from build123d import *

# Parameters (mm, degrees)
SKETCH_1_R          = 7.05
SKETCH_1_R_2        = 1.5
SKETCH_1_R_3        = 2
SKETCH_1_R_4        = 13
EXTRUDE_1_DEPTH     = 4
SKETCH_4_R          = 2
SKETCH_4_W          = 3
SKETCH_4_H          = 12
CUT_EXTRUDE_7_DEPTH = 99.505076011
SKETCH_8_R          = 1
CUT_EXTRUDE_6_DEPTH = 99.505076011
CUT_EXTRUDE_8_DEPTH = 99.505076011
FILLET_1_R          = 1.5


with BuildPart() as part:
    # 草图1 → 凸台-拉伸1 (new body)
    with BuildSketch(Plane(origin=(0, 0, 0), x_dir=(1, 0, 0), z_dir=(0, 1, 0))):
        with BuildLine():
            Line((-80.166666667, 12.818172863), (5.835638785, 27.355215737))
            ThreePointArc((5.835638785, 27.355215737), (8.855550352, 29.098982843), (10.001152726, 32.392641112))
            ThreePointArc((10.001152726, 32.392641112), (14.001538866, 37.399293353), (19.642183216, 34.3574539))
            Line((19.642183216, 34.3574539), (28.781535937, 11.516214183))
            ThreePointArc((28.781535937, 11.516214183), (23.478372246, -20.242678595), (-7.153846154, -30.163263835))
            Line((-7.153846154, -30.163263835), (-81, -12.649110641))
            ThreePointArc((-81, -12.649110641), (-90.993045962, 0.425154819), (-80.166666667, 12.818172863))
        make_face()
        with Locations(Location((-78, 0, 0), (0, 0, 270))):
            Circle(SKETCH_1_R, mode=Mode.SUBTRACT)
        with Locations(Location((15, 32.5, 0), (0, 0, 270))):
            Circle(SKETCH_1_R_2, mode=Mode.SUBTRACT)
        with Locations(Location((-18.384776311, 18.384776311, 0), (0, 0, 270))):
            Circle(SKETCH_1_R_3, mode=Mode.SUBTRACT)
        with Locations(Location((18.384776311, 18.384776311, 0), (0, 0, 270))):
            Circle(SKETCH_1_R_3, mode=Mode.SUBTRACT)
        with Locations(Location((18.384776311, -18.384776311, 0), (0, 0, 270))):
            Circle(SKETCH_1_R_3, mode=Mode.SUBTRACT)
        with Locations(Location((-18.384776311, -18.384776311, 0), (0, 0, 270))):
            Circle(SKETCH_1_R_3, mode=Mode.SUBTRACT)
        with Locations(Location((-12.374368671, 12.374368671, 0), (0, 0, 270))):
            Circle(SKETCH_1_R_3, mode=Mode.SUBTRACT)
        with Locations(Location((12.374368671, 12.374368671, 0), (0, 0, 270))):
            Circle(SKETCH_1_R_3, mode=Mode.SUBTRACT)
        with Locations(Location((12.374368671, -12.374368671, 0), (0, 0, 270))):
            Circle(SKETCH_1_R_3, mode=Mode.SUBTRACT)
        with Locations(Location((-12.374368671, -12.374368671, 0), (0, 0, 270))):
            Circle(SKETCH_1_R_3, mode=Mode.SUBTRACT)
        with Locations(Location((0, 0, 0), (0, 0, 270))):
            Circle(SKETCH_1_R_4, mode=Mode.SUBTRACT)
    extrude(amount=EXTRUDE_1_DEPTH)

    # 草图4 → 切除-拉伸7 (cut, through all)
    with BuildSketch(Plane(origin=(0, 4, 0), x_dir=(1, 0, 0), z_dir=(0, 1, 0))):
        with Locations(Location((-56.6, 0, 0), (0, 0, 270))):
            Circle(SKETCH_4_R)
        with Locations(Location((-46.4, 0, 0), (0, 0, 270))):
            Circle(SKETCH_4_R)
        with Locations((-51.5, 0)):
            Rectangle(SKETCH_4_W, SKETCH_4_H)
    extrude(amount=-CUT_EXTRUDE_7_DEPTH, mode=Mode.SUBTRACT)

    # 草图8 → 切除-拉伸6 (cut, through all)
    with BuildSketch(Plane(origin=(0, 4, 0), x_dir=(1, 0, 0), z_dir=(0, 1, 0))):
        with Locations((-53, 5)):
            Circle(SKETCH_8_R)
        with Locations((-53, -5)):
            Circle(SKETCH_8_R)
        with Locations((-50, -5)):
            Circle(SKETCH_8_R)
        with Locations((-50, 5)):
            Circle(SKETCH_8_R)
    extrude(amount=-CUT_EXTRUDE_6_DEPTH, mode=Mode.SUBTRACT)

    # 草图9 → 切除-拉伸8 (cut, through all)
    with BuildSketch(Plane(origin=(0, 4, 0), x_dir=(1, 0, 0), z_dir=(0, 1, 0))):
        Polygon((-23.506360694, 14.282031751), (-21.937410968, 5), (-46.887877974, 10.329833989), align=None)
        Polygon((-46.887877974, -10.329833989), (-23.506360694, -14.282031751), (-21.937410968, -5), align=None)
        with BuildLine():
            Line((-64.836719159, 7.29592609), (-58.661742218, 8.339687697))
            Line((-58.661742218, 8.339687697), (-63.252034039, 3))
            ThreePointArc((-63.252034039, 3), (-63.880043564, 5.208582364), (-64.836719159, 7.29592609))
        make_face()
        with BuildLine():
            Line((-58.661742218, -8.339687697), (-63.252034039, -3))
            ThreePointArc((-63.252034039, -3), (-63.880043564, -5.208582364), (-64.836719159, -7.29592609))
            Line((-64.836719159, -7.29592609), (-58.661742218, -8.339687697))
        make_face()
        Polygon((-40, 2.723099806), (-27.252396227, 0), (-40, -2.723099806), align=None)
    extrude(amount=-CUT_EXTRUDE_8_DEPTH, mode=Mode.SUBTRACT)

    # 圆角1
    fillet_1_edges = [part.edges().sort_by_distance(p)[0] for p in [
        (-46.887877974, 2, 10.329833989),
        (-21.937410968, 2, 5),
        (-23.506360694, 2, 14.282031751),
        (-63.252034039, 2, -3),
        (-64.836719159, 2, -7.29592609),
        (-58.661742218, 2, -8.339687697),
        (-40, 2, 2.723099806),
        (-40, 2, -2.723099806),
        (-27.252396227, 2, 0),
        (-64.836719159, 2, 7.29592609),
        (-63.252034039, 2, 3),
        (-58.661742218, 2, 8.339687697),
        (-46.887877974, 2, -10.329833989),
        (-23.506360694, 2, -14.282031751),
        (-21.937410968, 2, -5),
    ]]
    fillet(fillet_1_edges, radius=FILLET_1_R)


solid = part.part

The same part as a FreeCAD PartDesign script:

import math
import FreeCAD as App
import Part
import Sketcher
from FreeCAD import Vector
Q = App.Units.Quantity


def edges_at(feature, points):
    """Names of the edges that pass closest to the given points."""
    edges = feature.Shape.Edges
    near = lambda p: min(range(len(edges)), key=lambda i: edges[i].distToShape(Part.Vertex(*p))[0])
    return sorted({f"Edge{near(p) + 1}" for p in points})


def add_polygon(sketch, points):
    """Adds a closed chain of lines whose ends are joined by coincident constraints."""
    first, n = sketch.GeometryCount, len(points)
    for a, b in zip(points, points[1:] + points[:1]):
        sketch.addGeometry(Part.LineSegment(App.Vector(*a, 0), App.Vector(*b, 0)), False)
    for i in range(n):
        sketch.addConstraint(Sketcher.Constraint("Coincident", first + i, 2, first + (i + 1) % n, 1))

doc = App.newDocument("Part")
body = doc.addObject("PartDesign::Body", "Body")

# Sketch on XZ plane
sketch1 = body.newObject("Sketcher::SketchObject", "Sketch")
sketch1.AttachmentSupport = (doc.getObject("XZ_Plane"), [""])
sketch1.MapMode = "FlatFace"
sketch1.addGeometry(Part.LineSegment(Vector(5.8, -27.4, 0), Vector(-80.2, -12.8, 0)), False)
sketch1.addGeometry(Part.ArcOfCircle(Part.Circle(Vector(-78, 0, 0), Vector(0, 0, 1), 13), math.radians(103), math.radians(260)), False)
sketch1.addGeometry(Part.LineSegment(Vector(-81, 12.6, 0), Vector(-7.2, 30.2, 0)), False)
sketch1.addGeometry(Part.ArcOfCircle(Part.Circle(Vector(0, 0, 0), Vector(0, 0, 1), 31), math.radians(-22), math.radians(103)), False)
sketch1.addGeometry(Part.LineSegment(Vector(28.8, -11.5, 0), Vector(19.6, -34.4, 0)), False)
sketch1.addGeometry(Part.ArcOfCircle(Part.Circle(Vector(15, -32.5, 0), Vector(0, 0, 1), 5), math.radians(179), math.radians(338)), False)
sketch1.addGeometry(Part.ArcOfCircle(Part.Circle(Vector(5, -32.3, 0), Vector(0, 0, 1), 5), math.radians(-1), math.radians(80)), False)
sketch1.addGeometry(Part.Circle(Vector(18.4, 18.4, 0), Vector(0, 0, 1), 2), False)
sketch1.addGeometry(Part.Circle(Vector(12.4, 12.4, 0), Vector(0, 0, 1), 2), False)
sketch1.addGeometry(Part.Circle(Vector(-18.4, 18.4, 0), Vector(0, 0, 1), 2), False)
sketch1.addGeometry(Part.Circle(Vector(-12.4, 12.4, 0), Vector(0, 0, 1), 2), False)
sketch1.addGeometry(Part.Circle(Vector(0, 0, 0), Vector(0, 0, 1), 13), False)
sketch1.addGeometry(Part.Circle(Vector(-78, 0, 0), Vector(0, 0, 1), 7), False)
sketch1.addGeometry(Part.Circle(Vector(12.4, -12.4, 0), Vector(0, 0, 1), 2), False)
sketch1.addGeometry(Part.Circle(Vector(18.4, -18.4, 0), Vector(0, 0, 1), 2), False)
sketch1.addGeometry(Part.Circle(Vector(-12.4, -12.4, 0), Vector(0, 0, 1), 2), False)
sketch1.addGeometry(Part.Circle(Vector(-18.4, -18.4, 0), Vector(0, 0, 1), 2), False)
sketch1.addGeometry(Part.Circle(Vector(15, -32.5, 0), Vector(0, 0, 1), 1.5), False)
sketch1.addConstraint(Sketcher.Constraint("Tangent", 0, 2, 1, 2))
sketch1.addConstraint(Sketcher.Constraint("Tangent", 1, 1, 2, 1))
sketch1.addConstraint(Sketcher.Constraint("Tangent", 2, 2, 3, 2))
sketch1.addConstraint(Sketcher.Constraint("Tangent", 3, 1, 4, 1))
sketch1.addConstraint(Sketcher.Constraint("Tangent", 4, 2, 5, 2))
sketch1.addConstraint(Sketcher.Constraint("Tangent", 5, 1, 6, 1))
sketch1.addConstraint(Sketcher.Constraint("Tangent", 6, 2, 0, 1))
sketch1.addConstraint(Sketcher.Constraint("Coincident", 3, 3, -1, 1))
sketch1.addConstraint(Sketcher.Constraint("Coincident", 11, 3, -1, 1))
sketch1.addConstraint(Sketcher.Constraint("Coincident", 12, 3, 1, 3))
sketch1.addConstraint(Sketcher.Constraint("Coincident", 17, 3, 5, 3))
sketch1.addConstraint(Sketcher.Constraint("Equal", 5, 6))
sketch1.addConstraint(Sketcher.Constraint("Equal", 7, 8))
sketch1.addConstraint(Sketcher.Constraint("Equal", 8, 9))
sketch1.addConstraint(Sketcher.Constraint("Equal", 9, 10))
sketch1.addConstraint(Sketcher.Constraint("Equal", 1, 11))
sketch1.addConstraint(Sketcher.Constraint("Equal", 10, 13))
sketch1.addConstraint(Sketcher.Constraint("Equal", 13, 14))
sketch1.addConstraint(Sketcher.Constraint("Equal", 14, 15))
sketch1.addConstraint(Sketcher.Constraint("Equal", 15, 16))
sketch1.addConstraint(Sketcher.Constraint("Symmetric", 10, 3, 13, 3, -1, 1))
sketch1.addConstraint(Sketcher.Constraint("Symmetric", 9, 3, 14, 3, -1, 1))
sketch1.addConstraint(Sketcher.Constraint("Symmetric", 8, 3, 15, 3, -1, 1))
sketch1.addConstraint(Sketcher.Constraint("Symmetric", 7, 3, 16, 3, -1, 1))
sketch1.addConstraint(Sketcher.Constraint("Symmetric", 7, 3, 9, 3, -2))
sketch1.addConstraint(Sketcher.Constraint("Symmetric", 8, 3, 10, 3, -2))
sketch1.addConstraint(Sketcher.Constraint("PointOnObject", 1, 3, -1))
sketch1.addConstraint(Sketcher.Constraint("Diameter", 7, Q("4 mm")))
sketch1.addConstraint(Sketcher.Constraint("Diameter", 11, Q("26 mm")))
sketch1.addConstraint(Sketcher.Constraint("Diameter", 17, Q("3 mm")))
sketch1.addConstraint(Sketcher.Constraint("Radius", 3, Q("31 mm")))
sketch1.addConstraint(Sketcher.Constraint("Radius", 5, Q("5 mm")))
sketch1.addConstraint(Sketcher.Constraint("Diameter", 12, Q("14.1 mm")))
sketch1.addConstraint(Sketcher.Constraint("DistanceX", 1, 3, -1, 1, Q("78 mm")))
sketch1.addConstraint(Sketcher.Constraint("DistanceX", -1, 1, 5, 3, Q("15 mm")))
sketch1.addConstraint(Sketcher.Constraint("DistanceY", 5, 3, -1, 1, Q("32.5 mm")))
sketch1.addConstraint(Sketcher.Constraint("DistanceX", -1, 1, 8, 3, Q("12.374369 mm")))
sketch1.addConstraint(Sketcher.Constraint("DistanceY", -1, 1, 8, 3, Q("12.374369 mm")))
sketch1.addConstraint(Sketcher.Constraint("DistanceY", 5, 1, -1, 1, Q("32.392641 mm")))
sketch1.addConstraint(Sketcher.Constraint("DistanceX", 6, 3, 7, 3, Q("13.382471 mm")))
sketch1.addConstraint(Sketcher.Constraint("DistanceY", 6, 3, 7, 3, Q("50.670059 mm")))
pad1 = body.newObject("PartDesign::Pad", "Pad")
pad1.Profile = sketch1
pad1.Length = 4
pad1.Reversed = True

# Sketch on XZ plane
sketch2 = body.newObject("Sketcher::SketchObject", "Sketch001")
sketch2.AttachmentSupport = (doc.getObject("XZ_Plane"), [""])
sketch2.MapMode = "FlatFace"
sketch2.AttachmentOffset = App.Placement(Vector(0, 0, -4), App.Rotation())
sketch2.addGeometry(Part.Circle(Vector(-56.6, 0, 0), Vector(0, 0, 1), 2), False)  # 0
sketch2.addGeometry(Part.Circle(Vector(-46.4, 0, 0), Vector(0, 0, 1), 2), False)  # 1
add_polygon(sketch2, [(-53, -6), (-53, 6), (-50, 6), (-50, -6)])  # lines 2-5
sketch2.addConstraint(Sketcher.Constraint("Vertical", 2))
sketch2.addConstraint(Sketcher.Constraint("Horizontal", 3))
sketch2.addConstraint(Sketcher.Constraint("Vertical", 4))
sketch2.addConstraint(Sketcher.Constraint("Horizontal", 5))
sketch2.addConstraint(Sketcher.Constraint("Equal", 0, 1))
sketch2.addConstraint(Sketcher.Constraint("PointOnObject", 0, 3, -1))
sketch2.addConstraint(Sketcher.Constraint("PointOnObject", 1, 3, -1))
sketch2.addConstraint(Sketcher.Constraint("Diameter", 0, Q("4 mm")))
sketch2.addConstraint(Sketcher.Constraint("DistanceX", 3, 1, 3, 2, Q("3 mm")))
sketch2.addConstraint(Sketcher.Constraint("DistanceY", 2, 1, 2, 2, Q("12 mm")))
sketch2.addConstraint(Sketcher.Constraint("DistanceX", 2, 2, -1, 1, Q("53 mm")))
sketch2.addConstraint(Sketcher.Constraint("DistanceY", -1, 1, 2, 2, Q("6 mm")))
sketch2.addConstraint(Sketcher.Constraint("DistanceX", 0, 3, -1, 1, Q("56.6 mm")))
sketch2.addConstraint(Sketcher.Constraint("DistanceX", 1, 3, -1, 1, Q("46.4 mm")))
pocket1 = body.newObject("PartDesign::Pocket", "Pocket")
pocket1.Profile = sketch2
pocket1.Type = "ThroughAll"
pocket1.Reversed = True

# Sketch on XZ plane
sketch3 = body.newObject("Sketcher::SketchObject", "Sketch002")
sketch3.AttachmentSupport = (doc.getObject("XZ_Plane"), [""])
sketch3.MapMode = "FlatFace"
sketch3.AttachmentOffset = App.Placement(Vector(0, 0, -4), App.Rotation())
sketch3.addGeometry(Part.Circle(Vector(-53, -5, 0), Vector(0, 0, 1), 1), False)
sketch3.addGeometry(Part.Circle(Vector(-53, 5, 0), Vector(0, 0, 1), 1), False)
sketch3.addGeometry(Part.Circle(Vector(-50, 5, 0), Vector(0, 0, 1), 1), False)
sketch3.addGeometry(Part.Circle(Vector(-50, -5, 0), Vector(0, 0, 1), 1), False)
sketch3.addConstraint(Sketcher.Constraint("Equal", 0, 1))
sketch3.addConstraint(Sketcher.Constraint("Equal", 1, 2))
sketch3.addConstraint(Sketcher.Constraint("Equal", 2, 3))
sketch3.addConstraint(Sketcher.Constraint("Symmetric", 0, 3, 1, 3, -1))
sketch3.addConstraint(Sketcher.Constraint("Symmetric", 2, 3, 3, 3, -1))
sketch3.addConstraint(Sketcher.Constraint("Horizontal", 1, 3, 2, 3))
sketch3.addConstraint(Sketcher.Constraint("Diameter", 0, Q("2 mm")))
sketch3.addConstraint(Sketcher.Constraint("DistanceX", 0, 3, -1, 1, Q("53 mm")))
sketch3.addConstraint(Sketcher.Constraint("DistanceY", 0, 3, -1, 1, Q("5 mm")))
sketch3.addConstraint(Sketcher.Constraint("DistanceX", 2, 3, -1, 1, Q("50 mm")))
pocket2 = body.newObject("PartDesign::Pocket", "Pocket001")
pocket2.Profile = sketch3
pocket2.Type = "ThroughAll"
pocket2.Reversed = True

# Sketch on XZ plane
sketch4 = body.newObject("Sketcher::SketchObject", "Sketch003")
sketch4.AttachmentSupport = (doc.getObject("XZ_Plane"), [""])
sketch4.MapMode = "FlatFace"
sketch4.AttachmentOffset = App.Placement(Vector(0, 0, -4), App.Rotation())
add_polygon(sketch4, [(-21.937411, -5), (-23.506361, -14.282032), (-46.887878, -10.329834)])  # lines 0-2
add_polygon(sketch4, [(-46.887878, 10.329834), (-23.506361, 14.282032), (-21.937411, 5)])  # lines 3-5
sketch4.addGeometry(Part.LineSegment(Vector(-58.661742, -8.339688, 0), Vector(-64.836719, -7.295926, 0)), False)  # 6
sketch4.addGeometry(Part.ArcOfCircle(Part.Circle(Vector(-78, 0, 0), Vector(0, 0, 1), 15.05), math.radians(-28.998003), math.radians(-11.498106)), False)  # 7
sketch4.addGeometry(Part.LineSegment(Vector(-63.252034, -3, 0), Vector(-58.661742, -8.339688, 0)), False)  # 8
sketch4.addGeometry(Part.LineSegment(Vector(-58.661742, 8.339688, 0), Vector(-63.252034, 3, 0)), False)  # 9
sketch4.addGeometry(Part.ArcOfCircle(Part.Circle(Vector(-78, 0, 0), Vector(0, 0, 1), 15.05), math.radians(11.498106), math.radians(28.998003)), False)  # 10
sketch4.addGeometry(Part.LineSegment(Vector(-64.836719, 7.295926, 0), Vector(-58.661742, 8.339688, 0)), False)  # 11
add_polygon(sketch4, [(-27.252396, 0), (-40, -2.7231), (-40, 2.7231)])  # lines 12-14
sketch4.addConstraint(Sketcher.Constraint("Coincident", 6, 2, 7, 1))
sketch4.addConstraint(Sketcher.Constraint("Coincident", 7, 2, 8, 1))
sketch4.addConstraint(Sketcher.Constraint("Coincident", 8, 2, 6, 1))
sketch4.addConstraint(Sketcher.Constraint("Coincident", 9, 2, 10, 1))
sketch4.addConstraint(Sketcher.Constraint("Coincident", 10, 2, 11, 1))
sketch4.addConstraint(Sketcher.Constraint("Coincident", 11, 2, 9, 1))
sketch4.addConstraint(Sketcher.Constraint("Vertical", 13))
sketch4.addConstraint(Sketcher.Constraint("Coincident", 10, 3, 7, 3))
sketch4.addConstraint(Sketcher.Constraint("PointOnObject", 7, 3, -1))
sketch4.addConstraint(Sketcher.Constraint("PointOnObject", 14, 2, -1))
sketch4.addConstraint(Sketcher.Constraint("Radius", 7, Q("15.05 mm")))
sketch4.addConstraint(Sketcher.Constraint("Radius", 10, Q("15.05 mm")))
sketch4.addConstraint(Sketcher.Constraint("DistanceX", 7, 3, -1, 1, Q("78 mm")))
sketch4.addConstraint(Sketcher.Constraint("DistanceY", 2, 2, -1, 1, Q("5 mm")))
sketch4.addConstraint(Sketcher.Constraint("DistanceY", -1, 1, 4, 2, Q("5 mm")))
sketch4.addConstraint(Sketcher.Constraint("DistanceY", 7, 2, -1, 1, Q("3 mm")))
sketch4.addConstraint(Sketcher.Constraint("DistanceY", -1, 1, 9, 2, Q("3 mm")))
sketch4.addConstraint(Sketcher.Constraint("DistanceX", 12, 2, -1, 1, Q("40 mm")))
sketch4.addConstraint(Sketcher.Constraint("DistanceY", 13, 1, 13, 2, Q("5.4462 mm")))
sketch4.addConstraint(Sketcher.Constraint("Distance", 0, Q("9.413698 mm")))
sketch4.addConstraint(Sketcher.Constraint("Distance", 4, Q("9.413698 mm")))
sketch4.addConstraint(Sketcher.Constraint("DistanceY", 12, 2, -1, 1, Q("2.7231 mm")))
sketch4.addConstraint(Sketcher.Constraint("Distance", 6, Q("6.26257 mm")))
sketch4.addConstraint(Sketcher.Constraint("Distance", 11, Q("6.26257 mm")))
sketch4.addConstraint(Sketcher.Constraint("Distance", 12, Q("13.035209 mm")))
sketch4.addConstraint(Sketcher.Constraint("DistanceX", 0, 2, -1, 1, Q("23.506361 mm")))
sketch4.addConstraint(Sketcher.Constraint("DistanceY", 0, 2, -1, 1, Q("14.282032 mm")))
sketch4.addConstraint(Sketcher.Constraint("DistanceX", 3, 2, -1, 1, Q("23.506361 mm")))
sketch4.addConstraint(Sketcher.Constraint("DistanceY", -1, 1, 3, 2, Q("14.282032 mm")))
sketch4.addConstraint(Sketcher.Constraint("DistanceX", 6, 2, -1, 1, Q("64.836719 mm")))
sketch4.addConstraint(Sketcher.Constraint("DistanceX", 10, 2, -1, 1, Q("64.836719 mm")))
sketch4.addConstraint(Sketcher.Constraint("DistanceX", 6, 2, 1, 2, Q("17.948841 mm")))
sketch4.addConstraint(Sketcher.Constraint("DistanceX", 6, 2, 5, 2, Q("17.948841 mm")))
sketch4.addConstraint(Sketcher.Constraint("DistanceY", 6, 2, 5, 2, Q("17.62576 mm")))
sketch4.addConstraint(Sketcher.Constraint("DistanceY", 8, 2, 6, 2, Q("1.043762 mm")))
sketch4.addConstraint(Sketcher.Constraint("DistanceY", 10, 2, 11, 2, Q("1.043762 mm")))
sketch4.addConstraint(Sketcher.Constraint("Distance", 1, Q("23.713187 mm")))
pocket3 = body.newObject("PartDesign::Pocket", "Pocket002")
pocket3.Profile = sketch4
pocket3.Type = "ThroughAll"
pocket3.Reversed = True
doc.recompute()

fillet = body.newObject("PartDesign::Fillet", "Fillet")
fillet.Base = (pocket3, edges_at(pocket3, [
    (-46.888, 2, 10.33),
    (-21.937, 2, 5),
    (-23.506, 2, 14.282),
    (-63.252, 2, -3),
    (-64.837, 2, -7.296),
    (-58.662, 2, -8.34),
    (-40, 2, 2.723),
    (-40, 2, -2.723),
    (-27.252, 2, 0),
    (-64.837, 2, 7.296),
    (-63.252, 2, 3),
    (-58.662, 2, 8.34),
    (-46.888, 2, -10.33),
    (-23.506, 2, -14.282),
    (-21.937, 2, -5),
]))
fillet.Radius = 1.5

doc.recompute()
